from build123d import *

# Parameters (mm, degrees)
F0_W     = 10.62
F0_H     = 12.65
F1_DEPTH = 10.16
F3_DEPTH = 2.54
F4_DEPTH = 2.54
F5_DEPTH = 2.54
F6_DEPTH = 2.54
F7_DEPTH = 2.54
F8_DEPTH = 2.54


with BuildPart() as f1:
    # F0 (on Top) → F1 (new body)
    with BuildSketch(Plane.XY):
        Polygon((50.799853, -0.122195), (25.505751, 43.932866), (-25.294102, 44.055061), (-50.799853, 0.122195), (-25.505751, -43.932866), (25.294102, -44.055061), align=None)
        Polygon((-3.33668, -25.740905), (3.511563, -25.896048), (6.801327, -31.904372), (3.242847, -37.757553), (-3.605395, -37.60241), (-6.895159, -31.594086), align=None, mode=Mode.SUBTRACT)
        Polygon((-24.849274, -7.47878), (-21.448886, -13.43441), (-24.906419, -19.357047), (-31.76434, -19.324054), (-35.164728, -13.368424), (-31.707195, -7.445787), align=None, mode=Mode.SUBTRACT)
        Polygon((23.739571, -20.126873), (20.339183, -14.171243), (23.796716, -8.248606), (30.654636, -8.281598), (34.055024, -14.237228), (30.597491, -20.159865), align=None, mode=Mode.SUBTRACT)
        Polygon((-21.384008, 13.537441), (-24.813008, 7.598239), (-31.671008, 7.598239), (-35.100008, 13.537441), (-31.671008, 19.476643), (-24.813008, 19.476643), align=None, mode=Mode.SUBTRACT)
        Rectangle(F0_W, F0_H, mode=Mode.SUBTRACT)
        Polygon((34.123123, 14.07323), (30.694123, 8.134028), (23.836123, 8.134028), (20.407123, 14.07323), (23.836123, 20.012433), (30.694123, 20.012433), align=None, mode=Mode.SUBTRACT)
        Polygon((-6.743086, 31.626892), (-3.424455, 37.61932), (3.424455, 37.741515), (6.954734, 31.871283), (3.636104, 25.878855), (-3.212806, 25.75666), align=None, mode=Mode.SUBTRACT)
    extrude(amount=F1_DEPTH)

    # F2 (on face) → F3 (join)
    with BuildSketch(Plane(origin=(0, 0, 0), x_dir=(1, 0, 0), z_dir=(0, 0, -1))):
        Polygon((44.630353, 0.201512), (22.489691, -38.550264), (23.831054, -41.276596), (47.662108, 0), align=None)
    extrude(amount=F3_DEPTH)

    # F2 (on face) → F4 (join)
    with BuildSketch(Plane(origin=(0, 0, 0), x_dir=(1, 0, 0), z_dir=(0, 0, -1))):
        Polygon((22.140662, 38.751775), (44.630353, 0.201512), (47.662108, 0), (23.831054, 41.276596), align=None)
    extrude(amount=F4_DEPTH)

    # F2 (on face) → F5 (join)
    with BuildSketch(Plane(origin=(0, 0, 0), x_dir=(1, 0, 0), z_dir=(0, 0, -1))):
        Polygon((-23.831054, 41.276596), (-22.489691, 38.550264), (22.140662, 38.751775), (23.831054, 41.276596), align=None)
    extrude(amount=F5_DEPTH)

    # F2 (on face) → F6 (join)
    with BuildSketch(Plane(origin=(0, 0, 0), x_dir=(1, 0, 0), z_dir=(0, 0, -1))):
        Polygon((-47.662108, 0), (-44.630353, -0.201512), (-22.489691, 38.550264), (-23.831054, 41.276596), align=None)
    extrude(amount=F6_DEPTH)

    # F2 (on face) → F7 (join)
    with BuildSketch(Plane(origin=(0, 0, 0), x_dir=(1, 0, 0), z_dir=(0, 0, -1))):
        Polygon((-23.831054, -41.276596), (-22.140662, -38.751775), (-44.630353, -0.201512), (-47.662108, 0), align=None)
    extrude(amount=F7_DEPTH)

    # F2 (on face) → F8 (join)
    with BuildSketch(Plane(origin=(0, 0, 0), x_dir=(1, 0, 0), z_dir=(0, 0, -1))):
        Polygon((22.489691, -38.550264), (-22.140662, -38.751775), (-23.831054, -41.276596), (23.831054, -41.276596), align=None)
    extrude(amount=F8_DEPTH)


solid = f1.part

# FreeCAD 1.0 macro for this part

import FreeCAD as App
import Part
import Sketcher
Q = App.Units.Quantity

doc = App.newDocument("Part")
body = doc.addObject("PartDesign::Body", "Body")

# Sketch on XY plane
sketch1 = body.newObject("Sketcher::SketchObject", "Sketch")
sketch1.AttachmentSupport = (doc.getObject("XY_Plane"), [""])
sketch1.MapMode = "FlatFace"
sketch1.addGeometry(Part.LineSegment(App.Vector(51, 0, 0), App.Vector(26, 44, 0)), False)
sketch1.addGeometry(Part.LineSegment(App.Vector(26, 44, 0), App.Vector(-25, 44, 0)), False)
sketch1.addGeometry(Part.LineSegment(App.Vector(-25, 44, 0), App.Vector(-51, 0, 0)), False)
sketch1.addGeometry(Part.LineSegment(App.Vector(-51, 0, 0), App.Vector(-26, -44, 0)), False)
sketch1.addGeometry(Part.LineSegment(App.Vector(-26, -44, 0), App.Vector(25, -44, 0)), False)
sketch1.addGeometry(Part.LineSegment(App.Vector(25, -44, 0), App.Vector(51, 0, 0)), False)
sketch1.addGeometry(Part.LineSegment(App.Vector(-32, -7, 0), App.Vector(-25, -7, 0)), False)
sketch1.addGeometry(Part.LineSegment(App.Vector(-25, -7, 0), App.Vector(-21, -13, 0)), False)
sketch1.addGeometry(Part.LineSegment(App.Vector(-21, -13, 0), App.Vector(-25, -19, 0)), False)
sketch1.addGeometry(Part.LineSegment(App.Vector(-25, -19, 0), App.Vector(-32, -19, 0)), False)
sketch1.addGeometry(Part.LineSegment(App.Vector(-32, -19, 0), App.Vector(-35, -13, 0)), False)
sketch1.addGeometry(Part.LineSegment(App.Vector(-35, -13, 0), App.Vector(-32, -7, 0)), False)
sketch1.addGeometry(Part.LineSegment(App.Vector(-7, -32, 0), App.Vector(-3, -26, 0)), False)
sketch1.addGeometry(Part.LineSegment(App.Vector(-3, -26, 0), App.Vector(4, -26, 0)), False)
sketch1.addGeometry(Part.LineSegment(App.Vector(4, -26, 0), App.Vector(7, -32, 0)), False)
sketch1.addGeometry(Part.LineSegment(App.Vector(7, -32, 0), App.Vector(3, -38, 0)), False)
sketch1.addGeometry(Part.LineSegment(App.Vector(3, -38, 0), App.Vector(-4, -38, 0)), False)
sketch1.addGeometry(Part.LineSegment(App.Vector(-4, -38, 0), App.Vector(-7, -32, 0)), False)
sketch1.addGeometry(Part.LineSegment(App.Vector(31, -20, 0), App.Vector(24, -20, 0)), False)
sketch1.addGeometry(Part.LineSegment(App.Vector(24, -20, 0), App.Vector(20, -14, 0)), False)
sketch1.addGeometry(Part.LineSegment(App.Vector(20, -14, 0), App.Vector(24, -8, 0)), False)
sketch1.addGeometry(Part.LineSegment(App.Vector(24, -8, 0), App.Vector(31, -8, 0)), False)
sketch1.addGeometry(Part.LineSegment(App.Vector(31, -8, 0), App.Vector(34, -14, 0)), False)
sketch1.addGeometry(Part.LineSegment(App.Vector(34, -14, 0), App.Vector(31, -20, 0)), False)
sketch1.addGeometry(Part.LineSegment(App.Vector(-25, 19, 0), App.Vector(-21, 14, 0)), False)
sketch1.addGeometry(Part.LineSegment(App.Vector(-21, 14, 0), App.Vector(-25, 8, 0)), False)
sketch1.addGeometry(Part.LineSegment(App.Vector(-25, 8, 0), App.Vector(-32, 8, 0)), False)
sketch1.addGeometry(Part.LineSegment(App.Vector(-32, 8, 0), App.Vector(-35, 14, 0)), False)
sketch1.addGeometry(Part.LineSegment(App.Vector(-35, 14, 0), App.Vector(-32, 19, 0)), False)
sketch1.addGeometry(Part.LineSegment(App.Vector(-32, 19, 0), App.Vector(-25, 19, 0)), False)
sketch1.addGeometry(Part.LineSegment(App.Vector(5, -6, 0), App.Vector(-5, -6, 0)), False)
sketch1.addGeometry(Part.LineSegment(App.Vector(-5, -6, 0), App.Vector(-5, 6, 0)), False)
sketch1.addGeometry(Part.LineSegment(App.Vector(-5, 6, 0), App.Vector(5, 6, 0)), False)
sketch1.addGeometry(Part.LineSegment(App.Vector(5, 6, 0), App.Vector(5, -6, 0)), False)
sketch1.addGeometry(Part.LineSegment(App.Vector(31, 20, 0), App.Vector(34, 14, 0)), False)
sketch1.addGeometry(Part.LineSegment(App.Vector(34, 14, 0), App.Vector(31, 8, 0)), False)
sketch1.addGeometry(Part.LineSegment(App.Vector(31, 8, 0), App.Vector(24, 8, 0)), False)
sketch1.addGeometry(Part.LineSegment(App.Vector(24, 8, 0), App.Vector(20, 14, 0)), False)
sketch1.addGeometry(Part.LineSegment(App.Vector(20, 14, 0), App.Vector(24, 20, 0)), False)
sketch1.addGeometry(Part.LineSegment(App.Vector(24, 20, 0), App.Vector(31, 20, 0)), False)
sketch1.addGeometry(Part.LineSegment(App.Vector(-3, 26, 0), App.Vector(-7, 32, 0)), False)
sketch1.addGeometry(Part.LineSegment(App.Vector(-7, 32, 0), App.Vector(-3, 38, 0)), False)
sketch1.addGeometry(Part.LineSegment(App.Vector(-3, 38, 0), App.Vector(3, 38, 0)), False)
sketch1.addGeometry(Part.LineSegment(App.Vector(3, 38, 0), App.Vector(7, 32, 0)), False)
sketch1.addGeometry(Part.LineSegment(App.Vector(7, 32, 0), App.Vector(4, 26, 0)), False)
sketch1.addGeometry(Part.LineSegment(App.Vector(4, 26, 0), App.Vector(-3, 26, 0)), False)
sketch1.addConstraint(Sketcher.Constraint("Coincident", 0, 2, 1, 1))
sketch1.addConstraint(Sketcher.Constraint("Coincident", 1, 2, 2, 1))
sketch1.addConstraint(Sketcher.Constraint("Coincident", 2, 2, 3, 1))
sketch1.addConstraint(Sketcher.Constraint("Coincident", 3, 2, 4, 1))
sketch1.addConstraint(Sketcher.Constraint("Coincident", 4, 2, 5, 1))
sketch1.addConstraint(Sketcher.Constraint("Coincident", 5, 2, 0, 1))
sketch1.addConstraint(Sketcher.Constraint("Coincident", 6, 2, 7, 1))
sketch1.addConstraint(Sketcher.Constraint("Coincident", 7, 2, 8, 1))
sketch1.addConstraint(Sketcher.Constraint("Coincident", 8, 2, 9, 1))
sketch1.addConstraint(Sketcher.Constraint("Coincident", 9, 2, 10, 1))
sketch1.addConstraint(Sketcher.Constraint("Coincident", 10, 2, 11, 1))
sketch1.addConstraint(Sketcher.Constraint("Coincident", 11, 2, 6, 1))
sketch1.addConstraint(Sketcher.Constraint("Coincident", 12, 2, 13, 1))
sketch1.addConstraint(Sketcher.Constraint("Coincident", 13, 2, 14, 1))
sketch1.addConstraint(Sketcher.Constraint("Coincident", 14, 2, 15, 1))
sketch1.addConstraint(Sketcher.Constraint("Coincident", 15, 2, 16, 1))
sketch1.addConstraint(Sketcher.Constraint("Coincident", 16, 2, 17, 1))
sketch1.addConstraint(Sketcher.Constraint("Coincident", 17, 2, 12, 1))
sketch1.addConstraint(Sketcher.Constraint("Coincident", 18, 2, 19, 1))
sketch1.addConstraint(Sketcher.Constraint("Coincident", 19, 2, 20, 1))
sketch1.addConstraint(Sketcher.Constraint("Coincident", 20, 2, 21, 1))
sketch1.addConstraint(Sketcher.Constraint("Coincident", 21, 2, 22, 1))
sketch1.addConstraint(Sketcher.Constraint("Coincident", 22, 2, 23, 1))
sketch1.addConstraint(Sketcher.Constraint("Coincident", 23, 2, 18, 1))
sketch1.addConstraint(Sketcher.Constraint("Coincident", 24, 2, 25, 1))
sketch1.addConstraint(Sketcher.Constraint("Coincident", 25, 2, 26, 1))
sketch1.addConstraint(Sketcher.Constraint("Coincident", 26, 2, 27, 1))
sketch1.addConstraint(Sketcher.Constraint("Coincident", 27, 2, 28, 1))
sketch1.addConstraint(Sketcher.Constraint("Coincident", 28, 2, 29, 1))
sketch1.addConstraint(Sketcher.Constraint("Coincident", 29, 2, 24, 1))
sketch1.addConstraint(Sketcher.Constraint("Coincident", 30, 2, 31, 1))
sketch1.addConstraint(Sketcher.Constraint("Coincident", 31, 2, 32, 1))
sketch1.addConstraint(Sketcher.Constraint("Coincident", 32, 2, 33, 1))
sketch1.addConstraint(Sketcher.Constraint("Coincident", 33, 2, 30, 1))
sketch1.addConstraint(Sketcher.Constraint("Coincident", 34, 2, 35, 1))
sketch1.addConstraint(Sketcher.Constraint("Coincident", 35, 2, 36, 1))
sketch1.addConstraint(Sketcher.Constraint("Coincident", 36, 2, 37, 1))
sketch1.addConstraint(Sketcher.Constraint("Coincident", 37, 2, 38, 1))
sketch1.addConstraint(Sketcher.Constraint("Coincident", 38, 2, 39, 1))
sketch1.addConstraint(Sketcher.Constraint("Coincident", 39, 2, 34, 1))
sketch1.addConstraint(Sketcher.Constraint("Coincident", 40, 2, 41, 1))
sketch1.addConstraint(Sketcher.Constraint("Coincident", 41, 2, 42, 1))
sketch1.addConstraint(Sketcher.Constraint("Coincident", 42, 2, 43, 1))
sketch1.addConstraint(Sketcher.Constraint("Coincident", 43, 2, 44, 1))
sketch1.addConstraint(Sketcher.Constraint("Coincident", 44, 2, 45, 1))
sketch1.addConstraint(Sketcher.Constraint("Coincident", 45, 2, 40, 1))
sketch1.addConstraint(Sketcher.Constraint("Horizontal", 26))
sketch1.addConstraint(Sketcher.Constraint("Horizontal", 29))
sketch1.addConstraint(Sketcher.Constraint("Horizontal", 30))
sketch1.addConstraint(Sketcher.Constraint("Vertical", 31))
sketch1.addConstraint(Sketcher.Constraint("Horizontal", 32))
sketch1.addConstraint(Sketcher.Constraint("Vertical", 33))
sketch1.addConstraint(Sketcher.Constraint("Horizontal", 36))
sketch1.addConstraint(Sketcher.Constraint("Horizontal", 39))
sketch1.addConstraint(Sketcher.Constraint("Symmetric", 0, 2, 3, 2, -1, 1))
sketch1.addConstraint(Sketcher.Constraint("Symmetric", 1, 2, 4, 2, -1, 1))
sketch1.addConstraint(Sketcher.Constraint("Symmetric", 2, 2, 5, 2, -1, 1))
sketch1.addConstraint(Sketcher.Constraint("Symmetric", 30, 2, 32, 2, -1, 1))
sketch1.addConstraint(Sketcher.Constraint("Parallel", 6, 9))
sketch1.addConstraint(Sketcher.Constraint("Parallel", 7, 10))
sketch1.addConstraint(Sketcher.Constraint("Parallel", 8, 11))
sketch1.addConstraint(Sketcher.Constraint("Parallel", 12, 15))
sketch1.addConstraint(Sketcher.Constraint("Parallel", 13, 16))
sketch1.addConstraint(Sketcher.Constraint("Parallel", 14, 17))
sketch1.addConstraint(Sketcher.Constraint("Parallel", 9, 18))
sketch1.addConstraint(Sketcher.Constraint("Parallel", 10, 19))
sketch1.addConstraint(Sketcher.Constraint("Parallel", 11, 20))
sketch1.addConstraint(Sketcher.Constraint("Parallel", 18, 21))
sketch1.addConstraint(Sketcher.Constraint("Parallel", 19, 22))
sketch1.addConstraint(Sketcher.Constraint("Parallel", 20, 23))
sketch1.addConstraint(Sketcher.Constraint("Parallel", 24, 27))
sketch1.addConstraint(Sketcher.Constraint("Parallel", 25, 28))
sketch1.addConstraint(Sketcher.Constraint("Parallel", 27, 34))
sketch1.addConstraint(Sketcher.Constraint("Parallel", 28, 35))
sketch1.addConstraint(Sketcher.Constraint("Parallel", 34, 37))
sketch1.addConstraint(Sketcher.Constraint("Parallel", 35, 38))
sketch1.addConstraint(Sketcher.Constraint("Parallel", 40, 43))
sketch1.addConstraint(Sketcher.Constraint("Parallel", 41, 44))
sketch1.addConstraint(Sketcher.Constraint("Parallel", 42, 45))
sketch1.addConstraint(Sketcher.Constraint("Horizontal", 24, 2, 27, 2))
sketch1.addConstraint(Sketcher.Constraint("Horizontal", 34, 2, 37, 2))
sketch1.addConstraint(Sketcher.Constraint("Vertical", 26, 2, 28, 2))
sketch1.addConstraint(Sketcher.Constraint("Vertical", 25, 2, 29, 2))
sketch1.addConstraint(Sketcher.Constraint("Vertical", 36, 2, 38, 2))
sketch1.addConstraint(Sketcher.Constraint("Equal", 29, 36))
sketch1.addConstraint(Sketcher.Constraint("Equal", 0, 1))
sketch1.addConstraint(Sketcher.Constraint("Equal", 1, 2))
sketch1.addConstraint(Sketcher.Constraint("Equal", 6, 7))
sketch1.addConstraint(Sketcher.Constraint("Equal", 7, 8))
sketch1.addConstraint(Sketcher.Constraint("Equal", 8, 9))
sketch1.addConstraint(Sketcher.Constraint("Equal", 12, 13))
sketch1.addConstraint(Sketcher.Constraint("Equal", 13, 14))
sketch1.addConstraint(Sketcher.Constraint("Equal", 14, 15))
sketch1.addConstraint(Sketcher.Constraint("Equal", 11, 18))
sketch1.addConstraint(Sketcher.Constraint("Equal", 18, 19))
sketch1.addConstraint(Sketcher.Constraint("Equal", 19, 20))
sketch1.addConstraint(Sketcher.Constraint("Equal", 20, 21))
sketch1.addConstraint(Sketcher.Constraint("Equal", 23, 24))
sketch1.addConstraint(Sketcher.Constraint("Equal", 28, 34))
sketch1.addConstraint(Sketcher.Constraint("Equal", 17, 40))
sketch1.addConstraint(Sketcher.Constraint("Equal", 40, 41))
sketch1.addConstraint(Sketcher.Constraint("Equal", 41, 42))
sketch1.addConstraint(Sketcher.Constraint("Equal", 42, 43))
sketch1.addConstraint(Sketcher.Constraint("Distance", 0, Q("2 in")))
sketch1.addConstraint(Sketcher.Constraint("Angle", 24, Q("-59.999999 deg")))
sketch1.addConstraint(Sketcher.Constraint("DistanceX", 26, 2, 26, 1, Q("0.27 in")))
sketch1.addConstraint(Sketcher.Constraint("Distance", 6, Q("0.27 in")))
sketch1.addConstraint(Sketcher.Constraint("DistanceX", 30, 2, 30, 1, 10.62))
sketch1.addConstraint(Sketcher.Constraint("DistanceY", 31, 1, 31, 2, 12.65))
sketch1.addConstraint(Sketcher.Constraint("DistanceX", 32, 2, 19, 2, Q("0.5917001 in")))
sketch1.addConstraint(Sketcher.Constraint("Distance", 12, 6.85))
sketch1.addConstraint(Sketcher.Constraint("DistanceX", 1, 2, -1, 1, 25.294102))
sketch1.addConstraint(Sketcher.Constraint("DistanceY", 21, 2, -1, 1, 8.281598))
sketch1.addConstraint(Sketcher.Constraint("DistanceX", 2, 2, 3, 2, 25.294102))
sketch1.addConstraint(Sketcher.Constraint("DistanceY", 13, 2, 8, 2, 6.539001))
sketch1.addConstraint(Sketcher.Constraint("DistanceX", 3, 2, 15, 2, 28.748598))
sketch1.addConstraint(Sketcher.Constraint("DistanceY", 14, 2, 18, 2, 11.777499))
sketch1.addConstraint(Sketcher.Constraint("DistanceX", 22, 2, 34, 2, 0.068099))
sketch1.addConstraint(Sketcher.Constraint("DistanceY", -1, 1, 1, 2, 44.055061))
sketch1.addConstraint(Sketcher.Constraint("DistanceY", 6, 2, -1, 1, 7.47878))
sketch1.addConstraint(Sketcher.Constraint("DistanceY", 7, 2, -1, 1, 13.43441))
sketch1.addConstraint(Sketcher.Constraint("DistanceX", 8, 2, -1, 1, 24.906419))
sketch1.addConstraint(Sketcher.Constraint("DistanceX", 12, 2, -1, 1, 3.33668))
sketch1.addConstraint(Sketcher.Constraint("DistanceY", 13, 2, -1, 1, 25.896048))
sketch1.addConstraint(Sketcher.Constraint("DistanceY", 14, 2, -1, 1, 31.904372))
sketch1.addConstraint(Sketcher.Constraint("DistanceY", 16, 2, -1, 1, 37.60241))
sketch1.addConstraint(Sketcher.Constraint("DistanceX", 24, 2, -1, 1, 21.384008))
sketch1.addConstraint(Sketcher.Constraint("DistanceY", -1, 1, 24, 2, 13.537441))
sketch1.addConstraint(Sketcher.Constraint("DistanceY", -1, 1, 34, 2, 14.07323))
sketch1.addConstraint(Sketcher.Constraint("DistanceY", -1, 1, 41, 2, 37.61932))
sketch1.addConstraint(Sketcher.Constraint("DistanceY", -1, 1, 45, 2, 25.75666))
sketch1.addConstraint(Sketcher.Constraint("DistanceX", 29, 2, 40, 2, 18.069922))
sketch1.addConstraint(Sketcher.Constraint("DistanceY", 29, 2, 40, 2, 12.150249))
sketch1.addConstraint(Sketcher.Constraint("DistanceX", 41, 2, 42, 2, 6.84891))
pad1 = body.newObject("PartDesign::Pad", "Pad")
pad1.Profile = sketch1
pad1.Length = Q("0.4 in")

# Sketch on XY plane
sketch2 = body.newObject("Sketcher::SketchObject", "Sketch001")
sketch2.AttachmentSupport = (doc.getObject("XY_Plane"), [""])
sketch2.MapMode = "FlatFace"
sketch2.addGeometry(Part.LineSegment(App.Vector(44.6, -0.2, 0), App.Vector(22.5, 38.6, 0)), False)
sketch2.addGeometry(Part.LineSegment(App.Vector(22.5, 38.6, 0), App.Vector(23.8, 41.3, 0)), False)
sketch2.addGeometry(Part.LineSegment(App.Vector(23.8, 41.3, 0), App.Vector(47.7, 0, 0)), False)
sketch2.addGeometry(Part.LineSegment(App.Vector(47.7, 0, 0), App.Vector(44.6, -0.2, 0)), False)
sketch2.addConstraint(Sketcher.Constraint("Coincident", 0, 2, 1, 1))
sketch2.addConstraint(Sketcher.Constraint("Coincident", 1, 2, 2, 1))
sketch2.addConstraint(Sketcher.Constraint("Coincident", 2, 2, 3, 1))
sketch2.addConstraint(Sketcher.Constraint("Coincident", 3, 2, 0, 1))
sketch2.addConstraint(Sketcher.Constraint("PointOnObject", 2, 2, -1))
sketch2.addConstraint(Sketcher.Constraint("Equal", 1, 3))
sketch2.addConstraint(Sketcher.Constraint("Angle", 2, Q("-60 deg")))
sketch2.addConstraint(Sketcher.Constraint("DistanceX", 1, 2, 3, 2, 20.799299))
sketch2.addConstraint(Sketcher.Constraint("Distance", 0, 44.630808))
sketch2.addConstraint(Sketcher.Constraint("DistanceX", -1, 1, 0, 2, 22.489691))
sketch2.addConstraint(Sketcher.Constraint("DistanceX", -1, 1, 2, 2, 47.662108))
sketch2.addConstraint(Sketcher.Constraint("DistanceY", 0, 2, 1, 2, 2.726332))
pad2 = body.newObject("PartDesign::Pad", "Pad001")
pad2.Profile = sketch2
pad2.Length = Q("0.1 in")
pad2.Reversed = True

# Sketch on XY plane
sketch3 = body.newObject("Sketcher::SketchObject", "Sketch002")
sketch3.AttachmentSupport = (doc.getObject("XY_Plane"), [""])
sketch3.MapMode = "FlatFace"
sketch3.addGeometry(Part.LineSegment(App.Vector(22.1, -38.8, 0), App.Vector(44.6, -0.2, 0)), False)
sketch3.addGeometry(Part.LineSegment(App.Vector(44.6, -0.2, 0), App.Vector(47.7, 0, 0)), False)
sketch3.addGeometry(Part.LineSegment(App.Vector(47.7, 0, 0), App.Vector(23.8, -41.3, 0)), False)
sketch3.addGeometry(Part.LineSegment(App.Vector(23.8, -41.3, 0), App.Vector(22.1, -38.8, 0)), False)
sketch3.addConstraint(Sketcher.Constraint("Coincident", 0, 2, 1, 1))
sketch3.addConstraint(Sketcher.Constraint("Coincident", 1, 2, 2, 1))
sketch3.addConstraint(Sketcher.Constraint("Coincident", 2, 2, 3, 1))
sketch3.addConstraint(Sketcher.Constraint("Coincident", 3, 2, 0, 1))
sketch3.addConstraint(Sketcher.Constraint("PointOnObject", 1, 2, -1))
sketch3.addConstraint(Sketcher.Constraint("Equal", 1, 3))
sketch3.addConstraint(Sketcher.Constraint("Angle", 2, Q("-120 deg")))
sketch3.addConstraint(Sketcher.Constraint("DistanceX", 2, 2, 0, 2, 20.799299))
sketch3.addConstraint(Sketcher.Constraint("DistanceX", -1, 1, 1, 2, 47.662108))
sketch3.addConstraint(Sketcher.Constraint("DistanceX", -1, 1, 3, 2, 22.140662))
sketch3.addConstraint(Sketcher.Constraint("DistanceY", 2, 2, 3, 2, 2.524821))
sketch3.addConstraint(Sketcher.Constraint("DistanceX", 3, 2, 0, 2, 22.489691))
pad3 = body.newObject("PartDesign::Pad", "Pad002")
pad3.Profile = sketch3
pad3.Length = Q("0.1 in")
pad3.Reversed = True

# Sketch on XY plane
sketch4 = body.newObject("Sketcher::SketchObject", "Sketch003")
sketch4.AttachmentSupport = (doc.getObject("XY_Plane"), [""])
sketch4.MapMode = "FlatFace"
sketch4.addGeometry(Part.LineSegment(App.Vector(-23.8, -41.3, 0), App.Vector(-22.5, -38.6, 0)), False)
sketch4.addGeometry(Part.LineSegment(App.Vector(-22.5, -38.6, 0), App.Vector(22.1, -38.8, 0)), False)
sketch4.addGeometry(Part.LineSegment(App.Vector(22.1, -38.8, 0), App.Vector(23.8, -41.3, 0)), False)
sketch4.addGeometry(Part.LineSegment(App.Vector(23.8, -41.3, 0), App.Vector(-23.8, -41.3, 0)), False)
sketch4.addConstraint(Sketcher.Constraint("Coincident", 0, 2, 1, 1))
sketch4.addConstraint(Sketcher.Constraint("Coincident", 1, 2, 2, 1))
sketch4.addConstraint(Sketcher.Constraint("Coincident", 2, 2, 3, 1))
sketch4.addConstraint(Sketcher.Constraint("Coincident", 3, 2, 0, 1))
sketch4.addConstraint(Sketcher.Constraint("Horizontal", 3))
sketch4.addConstraint(Sketcher.Constraint("Equal", 0, 2))
sketch4.addConstraint(Sketcher.Constraint("DistanceX", 3, 2, 3, 1, 47.662108))
sketch4.addConstraint(Sketcher.Constraint("DistanceX", 0, 2, -1, 1, 22.489691))
sketch4.addConstraint(Sketcher.Constraint("DistanceX", -1, 1, 1, 2, 22.140662))
sketch4.addConstraint(Sketcher.Constraint("DistanceY", 1, 2, 0, 2, 0.201511))
sketch4.addConstraint(Sketcher.Constraint("DistanceY", 2, 2, 1, 2, 2.524821))
sketch4.addConstraint(Sketcher.Constraint("DistanceY", 0, 2, -1, 1, 38.550264))
pad4 = body.newObject("PartDesign::Pad", "Pad003")
pad4.Profile = sketch4
pad4.Length = Q("0.1 in")
pad4.Reversed = True

# Sketch on XY plane
sketch5 = body.newObject("Sketcher::SketchObject", "Sketch004")
sketch5.AttachmentSupport = (doc.getObject("XY_Plane"), [""])
sketch5.MapMode = "FlatFace"
sketch5.addGeometry(Part.LineSegment(App.Vector(-47.7, 0, 0), App.Vector(-44.6, 0.2, 0)), False)
sketch5.addGeometry(Part.LineSegment(App.Vector(-44.6, 0.2, 0), App.Vector(-22.5, -38.6, 0)), False)
sketch5.addGeometry(Part.LineSegment(App.Vector(-22.5, -38.6, 0), App.Vector(-23.8, -41.3, 0)), False)
sketch5.addGeometry(Part.LineSegment(App.Vector(-23.8, -41.3, 0), App.Vector(-47.7, 0, 0)), False)
sketch5.addConstraint(Sketcher.Constraint("Coincident", 0, 2, 1, 1))
sketch5.addConstraint(Sketcher.Constraint("Coincident", 1, 2, 2, 1))
sketch5.addConstraint(Sketcher.Constraint("Coincident", 2, 2, 3, 1))
sketch5.addConstraint(Sketcher.Constraint("Coincident", 3, 2, 0, 1))
sketch5.addConstraint(Sketcher.Constraint("PointOnObject", 3, 2, -1))
sketch5.addConstraint(Sketcher.Constraint("Equal", 0, 2))
sketch5.addConstraint(Sketcher.Constraint("Angle", 3, Q("120 deg")))
sketch5.addConstraint(Sketcher.Constraint("DistanceX", 0, 2, 2, 2, 20.799299))
sketch5.addConstraint(Sketcher.Constraint("Distance", 1, 44.630808))
sketch5.addConstraint(Sketcher.Constraint("DistanceX", 1, 2, -1, 1, 22.489691))
sketch5.addConstraint(Sketcher.Constraint("DistanceX", 3, 2, -1, 1, 47.662108))
sketch5.addConstraint(Sketcher.Constraint("DistanceX", 0, 2, 1, 2, 22.140662))
pad5 = body.newObject("PartDesign::Pad", "Pad004")
pad5.Profile = sketch5
pad5.Length = Q("0.1 in")
pad5.Reversed = True

# Sketch on XY plane
sketch6 = body.newObject("Sketcher::SketchObject", "Sketch005")
sketch6.AttachmentSupport = (doc.getObject("XY_Plane"), [""])
sketch6.MapMode = "FlatFace"
sketch6.addGeometry(Part.LineSegment(App.Vector(-23.8, 41.3, 0), App.Vector(-22.1, 38.8, 0)), False)
sketch6.addGeometry(Part.LineSegment(App.Vector(-22.1, 38.8, 0), App.Vector(-44.6, 0.2, 0)), False)
sketch6.addGeometry(Part.LineSegment(App.Vector(-44.6, 0.2, 0), App.Vector(-47.7, 0, 0)), False)
sketch6.addGeometry(Part.LineSegment(App.Vector(-47.7, 0, 0), App.Vector(-23.8, 41.3, 0)), False)
sketch6.addConstraint(Sketcher.Constraint("Coincident", 0, 2, 1, 1))
sketch6.addConstraint(Sketcher.Constraint("Coincident", 1, 2, 2, 1))
sketch6.addConstraint(Sketcher.Constraint("Coincident", 2, 2, 3, 1))
sketch6.addConstraint(Sketcher.Constraint("Coincident", 3, 2, 0, 1))
sketch6.addConstraint(Sketcher.Constraint("PointOnObject", 2, 2, -1))
sketch6.addConstraint(Sketcher.Constraint("Equal", 0, 2))
sketch6.addConstraint(Sketcher.Constraint("Angle", 3, Q("60 deg")))
sketch6.addConstraint(Sketcher.Constraint("DistanceX", 1, 2, 3, 2, 20.799299))
sketch6.addConstraint(Sketcher.Constraint("DistanceX", 0, 2, -1, 1, 22.140662))
sketch6.addConstraint(Sketcher.Constraint("DistanceX", 2, 2, -1, 1, 47.662108))
sketch6.addConstraint(Sketcher.Constraint("DistanceX", 1, 2, 0, 2, 22.489691))
sketch6.addConstraint(Sketcher.Constraint("DistanceY", 0, 2, 3, 2, 2.524821))
pad6 = body.newObject("PartDesign::Pad", "Pad005")
pad6.Profile = sketch6
pad6.Length = Q("0.1 in")
pad6.Reversed = True

# Sketch on XY plane
sketch7 = body.newObject("Sketcher::SketchObject", "Sketch006")
sketch7.AttachmentSupport = (doc.getObject("XY_Plane"), [""])
sketch7.MapMode = "FlatFace"
sketch7.addGeometry(Part.LineSegment(App.Vector(22.5, 38.6, 0), App.Vector(-22.1, 38.8, 0)), False)
sketch7.addGeometry(Part.LineSegment(App.Vector(-22.1, 38.8, 0), App.Vector(-23.8, 41.3, 0)), False)
sketch7.addGeometry(Part.LineSegment(App.Vector(-23.8, 41.3, 0), App.Vector(23.8, 41.3, 0)), False)
sketch7.addGeometry(Part.LineSegment(App.Vector(23.8, 41.3, 0), App.Vector(22.5, 38.6, 0)), False)
sketch7.addConstraint(Sketcher.Constraint("Coincident", 0, 2, 1, 1))
sketch7.addConstraint(Sketcher.Constraint("Coincident", 1, 2, 2, 1))
sketch7.addConstraint(Sketcher.Constraint("Coincident", 2, 2, 3, 1))
sketch7.addConstraint(Sketcher.Constraint("Coincident", 3, 2, 0, 1))
sketch7.addConstraint(Sketcher.Constraint("Horizontal", 2))
sketch7.addConstraint(Sketcher.Constraint("Equal", 1, 3))
sketch7.addConstraint(Sketcher.Constraint("DistanceX", 2, 1, 2, 2, 47.662108))
sketch7.addConstraint(Sketcher.Constraint("DistanceX", 0, 2, -1, 1, 22.140662))
sketch7.addConstraint(Sketcher.Constraint("DistanceX", -1, 1, 3, 2, 22.489691))
sketch7.addConstraint(Sketcher.Constraint("DistanceY", 0, 2, 1, 2, 2.524821))
sketch7.addConstraint(Sketcher.Constraint("DistanceY", 3, 2, 2, 2, 2.726332))
sketch7.addConstraint(Sketcher.Constraint("DistanceY", -1, 1, 0, 2, 38.751775))
pad7 = body.newObject("PartDesign::Pad", "Pad006")
pad7.Profile = sketch7
pad7.Length = Q("0.1 in")
pad7.Reversed = True

doc.recompute()
